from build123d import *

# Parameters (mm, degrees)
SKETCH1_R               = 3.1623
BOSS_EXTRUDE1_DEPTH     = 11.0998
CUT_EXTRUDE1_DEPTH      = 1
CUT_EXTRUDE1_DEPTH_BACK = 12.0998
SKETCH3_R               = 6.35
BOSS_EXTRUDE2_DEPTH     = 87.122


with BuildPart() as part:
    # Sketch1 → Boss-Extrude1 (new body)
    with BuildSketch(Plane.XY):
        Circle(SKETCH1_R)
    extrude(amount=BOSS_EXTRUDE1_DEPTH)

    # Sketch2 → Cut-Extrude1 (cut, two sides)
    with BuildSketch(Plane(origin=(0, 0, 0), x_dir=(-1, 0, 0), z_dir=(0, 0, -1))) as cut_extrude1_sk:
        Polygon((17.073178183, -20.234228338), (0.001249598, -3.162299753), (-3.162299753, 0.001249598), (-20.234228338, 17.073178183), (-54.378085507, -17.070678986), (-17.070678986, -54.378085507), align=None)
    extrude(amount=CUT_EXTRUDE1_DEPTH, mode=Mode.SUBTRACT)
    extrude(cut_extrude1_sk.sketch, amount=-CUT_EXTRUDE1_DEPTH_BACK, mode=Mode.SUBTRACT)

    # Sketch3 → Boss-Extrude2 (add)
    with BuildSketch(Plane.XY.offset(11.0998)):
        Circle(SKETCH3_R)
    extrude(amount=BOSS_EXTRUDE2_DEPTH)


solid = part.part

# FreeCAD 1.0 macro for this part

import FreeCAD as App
import Part
import Sketcher

V = App.Vector
Q = App.Units.Quantity


def add_polygon(sketch, points):
    """Adds a closed chain of lines whose ends are joined by coincident constraints."""
    first, n = sketch.GeometryCount, len(points)
    for a, b in zip(points, points[1:] + points[:1]):
        sketch.addGeometry(Part.LineSegment(App.Vector(*a, 0), App.Vector(*b, 0)), False)
    for i in range(n):
        sketch.addConstraint(Sketcher.Constraint("Coincident", first + i, 2, first + (i + 1) % n, 1))

doc = App.newDocument("Part")
body = doc.addObject("PartDesign::Body", "Body")

sketch1 = body.newObject("Sketcher::SketchObject", "Sketch")
sketch1.AttachmentSupport = (doc.getObject("XY_Plane"), [""])
sketch1.MapMode = "FlatFace"
sketch1.addGeometry(Part.Circle(V(0, 0, 0), V(0, 0, 1), 3.2), False)
sketch1.addConstraint([
    Sketcher.Constraint("Coincident", 0, 3, -1, 1),
    Sketcher.Constraint("Diameter", 0, Q("0.249 in")),
])
pad1 = body.newObject("PartDesign::Pad", "Pad")
pad1.Profile = sketch1
pad1.Length = Q("0.437 in")

sketch2 = body.newObject("Sketcher::SketchObject", "Sketch001")
sketch2.AttachmentSupport = (doc.getObject("XY_Plane"), [""])
sketch2.MapMode = "FlatFace"
add_polygon(sketch2, [(-17, -20), (20, 17), (54, -17), (17, -54)])
sketch2.addConstraint([
    Sketcher.Constraint("Perpendicular", 0, 1),
    Sketcher.Constraint("Perpendicular", 1, 2),
    Sketcher.Constraint("Perpendicular", 2, 3),
    Sketcher.Constraint("Angle", 0, Q("45 deg")),
    Sketcher.Constraint("Distance", 0, 52.76064),
    Sketcher.Constraint("DistanceX", -1, 1, 0, 2, 20.234228),
    Sketcher.Constraint("DistanceY", -1, 1, 0, 2, 17.073178),
    Sketcher.Constraint("DistanceY", 1, 2, -1, 1, 17.070679),
])
pocket1 = body.newObject("PartDesign::Pocket", "Pocket")
pocket1.Profile = sketch2
pocket1.Type = "ThroughAll"
pocket1.Midplane = True

sketch3 = body.newObject("Sketcher::SketchObject", "Sketch002")
sketch3.AttachmentSupport = (doc.getObject("XY_Plane"), [""])
sketch3.MapMode = "FlatFace"
sketch3.AttachmentOffset = App.Placement(V(0, 0, 0.437 * 25.4), App.Rotation())
sketch3.addGeometry(Part.Circle(V(0, 0, 0), V(0, 0, 1), 6), False)
sketch3.addConstraint([
    Sketcher.Constraint("Coincident", 0, 3, -1, 1),
    Sketcher.Constraint("Diameter", 0, Q("0.5 in")),
])
pad2 = body.newObject("PartDesign::Pad", "Pad001")
pad2.Profile = sketch3
pad2.Length = Q("3.43 in")

doc.recompute()
